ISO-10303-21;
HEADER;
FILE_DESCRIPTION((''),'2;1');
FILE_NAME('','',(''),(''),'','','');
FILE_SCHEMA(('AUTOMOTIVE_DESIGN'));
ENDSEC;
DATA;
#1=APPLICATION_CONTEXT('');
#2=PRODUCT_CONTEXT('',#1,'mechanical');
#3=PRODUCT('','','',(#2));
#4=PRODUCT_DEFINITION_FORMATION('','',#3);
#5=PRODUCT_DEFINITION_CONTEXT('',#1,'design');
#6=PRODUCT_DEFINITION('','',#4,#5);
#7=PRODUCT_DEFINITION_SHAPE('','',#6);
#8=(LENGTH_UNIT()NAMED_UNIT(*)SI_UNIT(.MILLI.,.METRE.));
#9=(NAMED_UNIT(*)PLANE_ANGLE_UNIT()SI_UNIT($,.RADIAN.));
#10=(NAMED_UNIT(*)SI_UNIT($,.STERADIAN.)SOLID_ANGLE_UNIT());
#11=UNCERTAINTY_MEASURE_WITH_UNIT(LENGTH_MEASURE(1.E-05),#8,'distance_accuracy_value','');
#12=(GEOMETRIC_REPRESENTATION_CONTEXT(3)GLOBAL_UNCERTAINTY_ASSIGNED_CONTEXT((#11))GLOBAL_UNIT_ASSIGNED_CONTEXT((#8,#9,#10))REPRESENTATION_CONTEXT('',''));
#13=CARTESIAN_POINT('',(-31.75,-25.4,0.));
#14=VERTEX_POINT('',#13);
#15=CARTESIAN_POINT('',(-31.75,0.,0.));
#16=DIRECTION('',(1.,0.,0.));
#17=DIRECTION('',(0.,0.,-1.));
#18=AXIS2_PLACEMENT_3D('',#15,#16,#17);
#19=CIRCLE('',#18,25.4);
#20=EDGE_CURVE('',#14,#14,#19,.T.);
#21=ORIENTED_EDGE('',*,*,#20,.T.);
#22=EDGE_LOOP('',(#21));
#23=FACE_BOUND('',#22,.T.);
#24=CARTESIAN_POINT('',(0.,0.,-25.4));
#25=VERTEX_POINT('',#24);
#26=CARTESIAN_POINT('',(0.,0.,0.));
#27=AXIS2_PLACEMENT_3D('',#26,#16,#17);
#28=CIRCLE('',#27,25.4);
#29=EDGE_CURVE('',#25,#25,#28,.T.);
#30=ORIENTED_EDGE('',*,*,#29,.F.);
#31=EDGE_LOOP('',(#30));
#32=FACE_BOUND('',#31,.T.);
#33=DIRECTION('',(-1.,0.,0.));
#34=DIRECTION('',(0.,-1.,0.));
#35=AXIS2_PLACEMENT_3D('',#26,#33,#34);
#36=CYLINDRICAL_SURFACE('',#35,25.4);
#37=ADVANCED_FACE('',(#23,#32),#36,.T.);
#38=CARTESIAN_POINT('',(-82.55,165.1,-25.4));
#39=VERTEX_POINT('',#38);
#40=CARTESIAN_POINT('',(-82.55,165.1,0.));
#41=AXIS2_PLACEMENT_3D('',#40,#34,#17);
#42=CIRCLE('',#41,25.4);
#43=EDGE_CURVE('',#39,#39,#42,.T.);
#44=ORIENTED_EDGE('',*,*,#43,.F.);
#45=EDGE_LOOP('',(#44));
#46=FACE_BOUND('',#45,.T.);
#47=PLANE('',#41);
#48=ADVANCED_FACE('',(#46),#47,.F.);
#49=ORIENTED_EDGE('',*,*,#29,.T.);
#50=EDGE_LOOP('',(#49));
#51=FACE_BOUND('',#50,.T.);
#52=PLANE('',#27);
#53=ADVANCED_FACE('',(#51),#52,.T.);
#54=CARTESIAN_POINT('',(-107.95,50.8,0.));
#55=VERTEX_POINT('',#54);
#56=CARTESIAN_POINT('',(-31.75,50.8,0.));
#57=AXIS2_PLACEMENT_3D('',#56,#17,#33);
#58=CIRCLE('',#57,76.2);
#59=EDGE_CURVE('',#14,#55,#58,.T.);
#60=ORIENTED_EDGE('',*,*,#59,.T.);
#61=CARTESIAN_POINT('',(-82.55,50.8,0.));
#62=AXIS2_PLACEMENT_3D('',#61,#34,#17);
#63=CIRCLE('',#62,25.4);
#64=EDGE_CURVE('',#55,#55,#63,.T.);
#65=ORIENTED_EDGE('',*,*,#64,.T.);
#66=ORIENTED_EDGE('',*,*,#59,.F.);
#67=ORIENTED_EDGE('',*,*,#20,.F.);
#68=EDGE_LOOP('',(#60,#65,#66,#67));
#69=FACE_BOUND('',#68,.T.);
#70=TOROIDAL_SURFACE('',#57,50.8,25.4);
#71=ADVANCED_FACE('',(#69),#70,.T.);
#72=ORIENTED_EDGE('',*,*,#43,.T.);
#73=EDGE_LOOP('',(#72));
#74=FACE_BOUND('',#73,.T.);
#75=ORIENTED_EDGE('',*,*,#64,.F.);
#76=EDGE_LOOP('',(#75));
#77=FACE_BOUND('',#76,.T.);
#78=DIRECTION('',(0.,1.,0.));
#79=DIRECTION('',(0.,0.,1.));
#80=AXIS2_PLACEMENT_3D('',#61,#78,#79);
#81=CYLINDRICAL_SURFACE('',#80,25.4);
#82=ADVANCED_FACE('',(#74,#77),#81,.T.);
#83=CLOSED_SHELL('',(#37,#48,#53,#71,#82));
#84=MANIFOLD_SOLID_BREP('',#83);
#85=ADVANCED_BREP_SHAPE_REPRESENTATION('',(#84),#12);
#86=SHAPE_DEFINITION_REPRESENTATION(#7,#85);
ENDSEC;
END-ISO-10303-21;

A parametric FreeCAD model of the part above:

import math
import FreeCAD as App
import Part
import Sketcher
Q = App.Units.Quantity

doc = App.newDocument("Part")
body = doc.addObject("PartDesign::Body", "Body")

# Sketch on YZ plane
sketch1 = body.newObject("Sketcher::SketchObject", "Sketch")
sketch1.AttachmentSupport = (doc.getObject("YZ_Plane"), [""])
sketch1.MapMode = "FlatFace"
sketch1.addGeometry(Part.Circle(App.Vector(0, 0, 0), App.Vector(0, 0, 1), 25), False)
sketch1.addConstraint([
    Sketcher.Constraint("Coincident", 0, 3, -1, 1),
    Sketcher.Constraint("Diameter", 0, Q("2 in")),
])

# Sketch on XY plane
sketch2 = body.newObject("Sketcher::SketchObject", "Sketch001")
sketch2.AttachmentSupport = (doc.getObject("XY_Plane"), [""])
sketch2.MapMode = "FlatFace"
sketch2.addGeometry([
    Part.LineSegment(App.Vector(0, 0, 0), App.Vector(-32, 0, 0)),
    Part.ArcOfCircle(Part.Circle(App.Vector(-32, 51, 0), App.Vector(0, 0, 1), 51), math.radians(-180), math.radians(-90)),
    Part.LineSegment(App.Vector(-83, 51, 0), App.Vector(-83, 165, 0)),
], False)
sketch2.addConstraint([
    Sketcher.Constraint("Tangent", 0, 2, 1, 2),
    Sketcher.Constraint("Tangent", 1, 1, 2, 1),
    Sketcher.Constraint("Horizontal", 0),
    Sketcher.Constraint("Vertical", 2),
    Sketcher.Constraint("Coincident", 0, 1, -1, 1),
    Sketcher.Constraint("Radius", 1, Q("2 in")),
    Sketcher.Constraint("DistanceY", 2, 1, 2, 2, Q("4.5 in")),
    Sketcher.Constraint("DistanceX", 0, 2, 0, 1, Q("1.25 in")),
])
doc.recompute()

additivepipe = body.newObject("PartDesign::AdditivePipe", "AdditivePipe")
additivepipe.Profile = sketch1
additivepipe.Spine = (sketch2, ["Edge1", "Edge2", "Edge3"])

doc.recompute()
